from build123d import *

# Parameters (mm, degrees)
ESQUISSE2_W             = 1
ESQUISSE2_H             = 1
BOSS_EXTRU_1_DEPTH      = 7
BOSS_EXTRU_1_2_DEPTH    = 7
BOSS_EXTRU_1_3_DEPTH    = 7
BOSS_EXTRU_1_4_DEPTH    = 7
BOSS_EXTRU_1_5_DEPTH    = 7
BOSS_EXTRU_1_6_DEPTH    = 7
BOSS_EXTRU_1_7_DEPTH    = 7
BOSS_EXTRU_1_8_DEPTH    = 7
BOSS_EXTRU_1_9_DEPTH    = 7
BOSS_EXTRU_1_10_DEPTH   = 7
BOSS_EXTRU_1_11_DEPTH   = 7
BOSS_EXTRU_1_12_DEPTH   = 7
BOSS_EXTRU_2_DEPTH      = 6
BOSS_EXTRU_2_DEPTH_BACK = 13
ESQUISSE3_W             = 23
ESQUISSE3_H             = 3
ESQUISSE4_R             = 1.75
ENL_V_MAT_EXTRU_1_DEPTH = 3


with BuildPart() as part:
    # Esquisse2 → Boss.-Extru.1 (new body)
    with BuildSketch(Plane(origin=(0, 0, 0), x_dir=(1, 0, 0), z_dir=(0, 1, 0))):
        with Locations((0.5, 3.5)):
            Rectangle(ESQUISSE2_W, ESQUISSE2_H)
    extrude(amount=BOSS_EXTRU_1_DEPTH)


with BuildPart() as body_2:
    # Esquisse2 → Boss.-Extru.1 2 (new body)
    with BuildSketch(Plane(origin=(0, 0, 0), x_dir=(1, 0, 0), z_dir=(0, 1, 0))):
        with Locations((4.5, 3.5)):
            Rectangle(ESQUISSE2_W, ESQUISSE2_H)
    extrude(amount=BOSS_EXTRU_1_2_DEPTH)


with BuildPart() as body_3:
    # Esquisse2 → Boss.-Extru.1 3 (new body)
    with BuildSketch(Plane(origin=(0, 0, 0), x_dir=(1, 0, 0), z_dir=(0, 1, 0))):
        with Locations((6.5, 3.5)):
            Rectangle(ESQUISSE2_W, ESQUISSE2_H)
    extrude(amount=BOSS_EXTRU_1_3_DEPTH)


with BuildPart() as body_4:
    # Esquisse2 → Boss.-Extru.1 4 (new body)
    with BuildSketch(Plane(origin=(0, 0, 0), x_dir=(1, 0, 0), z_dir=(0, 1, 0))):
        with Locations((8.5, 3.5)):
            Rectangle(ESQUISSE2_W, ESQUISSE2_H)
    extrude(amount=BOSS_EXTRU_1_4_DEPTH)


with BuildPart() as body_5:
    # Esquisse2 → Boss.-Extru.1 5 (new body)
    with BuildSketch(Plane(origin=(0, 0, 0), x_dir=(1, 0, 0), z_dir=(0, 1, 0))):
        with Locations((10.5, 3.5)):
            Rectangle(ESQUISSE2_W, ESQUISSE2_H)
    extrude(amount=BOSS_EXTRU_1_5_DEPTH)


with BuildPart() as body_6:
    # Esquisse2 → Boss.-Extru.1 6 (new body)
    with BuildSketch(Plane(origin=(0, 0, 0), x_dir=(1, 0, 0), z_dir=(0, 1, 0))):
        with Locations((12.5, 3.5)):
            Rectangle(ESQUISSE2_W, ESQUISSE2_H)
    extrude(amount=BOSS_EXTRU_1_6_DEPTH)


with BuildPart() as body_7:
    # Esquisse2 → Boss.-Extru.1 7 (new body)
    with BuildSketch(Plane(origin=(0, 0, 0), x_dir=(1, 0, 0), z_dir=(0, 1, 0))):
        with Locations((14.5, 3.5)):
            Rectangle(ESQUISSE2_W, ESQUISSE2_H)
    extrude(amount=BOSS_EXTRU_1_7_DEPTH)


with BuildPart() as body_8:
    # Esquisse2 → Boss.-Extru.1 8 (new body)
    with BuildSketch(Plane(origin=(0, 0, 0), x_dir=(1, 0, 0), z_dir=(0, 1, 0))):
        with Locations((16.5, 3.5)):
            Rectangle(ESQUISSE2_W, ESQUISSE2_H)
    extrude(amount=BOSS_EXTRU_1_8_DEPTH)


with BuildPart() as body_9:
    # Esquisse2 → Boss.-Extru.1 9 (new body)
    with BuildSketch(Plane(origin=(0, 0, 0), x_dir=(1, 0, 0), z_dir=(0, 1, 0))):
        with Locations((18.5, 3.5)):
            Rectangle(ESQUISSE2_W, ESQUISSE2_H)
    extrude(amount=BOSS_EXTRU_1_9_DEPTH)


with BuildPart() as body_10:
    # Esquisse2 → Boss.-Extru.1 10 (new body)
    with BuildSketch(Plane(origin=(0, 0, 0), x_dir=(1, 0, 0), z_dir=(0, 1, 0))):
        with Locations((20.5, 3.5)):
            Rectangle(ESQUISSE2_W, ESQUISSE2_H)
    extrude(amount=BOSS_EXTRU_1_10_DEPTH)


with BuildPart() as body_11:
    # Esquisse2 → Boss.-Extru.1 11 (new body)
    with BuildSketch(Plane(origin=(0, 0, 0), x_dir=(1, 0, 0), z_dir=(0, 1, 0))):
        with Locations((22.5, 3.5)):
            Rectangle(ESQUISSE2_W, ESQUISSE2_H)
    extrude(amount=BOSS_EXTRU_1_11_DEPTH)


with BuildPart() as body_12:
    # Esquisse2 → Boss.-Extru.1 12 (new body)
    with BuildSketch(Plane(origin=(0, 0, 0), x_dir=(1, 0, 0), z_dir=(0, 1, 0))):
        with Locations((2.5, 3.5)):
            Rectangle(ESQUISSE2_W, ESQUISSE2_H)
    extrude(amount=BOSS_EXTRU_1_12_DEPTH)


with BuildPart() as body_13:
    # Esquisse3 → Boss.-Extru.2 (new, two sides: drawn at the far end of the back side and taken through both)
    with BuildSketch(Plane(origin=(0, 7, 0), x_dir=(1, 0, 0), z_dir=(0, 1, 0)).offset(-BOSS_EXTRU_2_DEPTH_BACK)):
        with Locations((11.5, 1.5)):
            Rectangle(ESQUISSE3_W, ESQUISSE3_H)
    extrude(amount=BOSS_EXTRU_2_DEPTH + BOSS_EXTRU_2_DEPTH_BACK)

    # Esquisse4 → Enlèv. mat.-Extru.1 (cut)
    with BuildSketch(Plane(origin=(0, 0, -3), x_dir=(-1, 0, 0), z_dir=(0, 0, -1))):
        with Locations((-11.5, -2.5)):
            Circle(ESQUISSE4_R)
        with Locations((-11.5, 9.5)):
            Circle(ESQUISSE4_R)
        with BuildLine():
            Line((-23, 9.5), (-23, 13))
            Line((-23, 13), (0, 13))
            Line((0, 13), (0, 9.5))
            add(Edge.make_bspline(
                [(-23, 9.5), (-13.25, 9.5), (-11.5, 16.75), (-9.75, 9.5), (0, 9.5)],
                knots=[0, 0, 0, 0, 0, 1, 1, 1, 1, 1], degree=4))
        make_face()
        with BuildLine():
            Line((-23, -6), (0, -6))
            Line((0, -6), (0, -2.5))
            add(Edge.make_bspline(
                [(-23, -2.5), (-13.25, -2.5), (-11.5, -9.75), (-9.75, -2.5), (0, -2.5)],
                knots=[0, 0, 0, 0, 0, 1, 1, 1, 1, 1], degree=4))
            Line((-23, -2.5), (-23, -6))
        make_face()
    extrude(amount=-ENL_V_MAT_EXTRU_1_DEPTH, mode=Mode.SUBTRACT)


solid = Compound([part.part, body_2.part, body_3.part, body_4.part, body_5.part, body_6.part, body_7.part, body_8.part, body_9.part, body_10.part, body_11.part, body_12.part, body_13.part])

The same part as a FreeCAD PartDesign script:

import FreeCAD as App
import Part
import Sketcher
from FreeCAD import Vector

doc = App.newDocument("Part")
body = doc.addObject("PartDesign::Body", "Body")

# Sketch on XZ plane
sketch1 = doc.addObject("Sketcher::SketchObject", "Sketch")
body.addObject(sketch1)
sketch1.AttachmentSupport = (doc.XZ_Plane, [""])
sketch1.MapMode = "FlatFace"
sketch1.addGeometry([
    Part.LineSegment(Vector(0, -4, 0), Vector(0, -3, 0)),
    Part.LineSegment(Vector(0, -3, 0), Vector(1, -3, 0)),
    Part.LineSegment(Vector(1, -3, 0), Vector(1, -4, 0)),
    Part.LineSegment(Vector(1, -4, 0), Vector(0, -4, 0)),
], False)
sketch1.addConstraint([
    Sketcher.Constraint("Coincident", 0, 2, 1, 1),
    Sketcher.Constraint("Coincident", 1, 2, 2, 1),
    Sketcher.Constraint("Coincident", 2, 2, 3, 1),
    Sketcher.Constraint("Coincident", 3, 2, 0, 1),
    Sketcher.Constraint("Vertical", 0),
    Sketcher.Constraint("Horizontal", 1),
    Sketcher.Constraint("Vertical", 2),
    Sketcher.Constraint("Horizontal", 3),
    Sketcher.Constraint("PointOnObject", 0, 2, -2),
    Sketcher.Constraint("Equal", 3, 0),
    Sketcher.Constraint("DistanceX", 1, 1, 1, 2, 1.0),
    Sketcher.Constraint("DistanceY", 0, 2, -1, 1, 3.0),
])
pad1 = doc.addObject("PartDesign::Pad", "Pad")
body.addObject(pad1)
pad1.Profile = sketch1
pad1.Length = 7
pad1.Reversed = True
body2 = doc.addObject("PartDesign::Body", "Body001")

# Sketch on XZ plane
sketch2 = doc.addObject("Sketcher::SketchObject", "Sketch001")
body2.addObject(sketch2)
sketch2.AttachmentSupport = (doc.getObject("XZ_Plane001"), [""])
sketch2.MapMode = "FlatFace"
sketch2.addGeometry([
    Part.LineSegment(Vector(4, -4, 0), Vector(4, -3, 0)),
    Part.LineSegment(Vector(4, -3, 0), Vector(5, -3, 0)),
    Part.LineSegment(Vector(5, -3, 0), Vector(5, -4, 0)),
    Part.LineSegment(Vector(5, -4, 0), Vector(4, -4, 0)),
], False)
sketch2.addConstraint([
    Sketcher.Constraint("Coincident", 0, 2, 1, 1),
    Sketcher.Constraint("Coincident", 1, 2, 2, 1),
    Sketcher.Constraint("Coincident", 2, 2, 3, 1),
    Sketcher.Constraint("Coincident", 3, 2, 0, 1),
    Sketcher.Constraint("Vertical", 0),
    Sketcher.Constraint("Horizontal", 1),
    Sketcher.Constraint("Vertical", 2),
    Sketcher.Constraint("Horizontal", 3),
    Sketcher.Constraint("Equal", 3, 0),
    Sketcher.Constraint("DistanceX", 1, 1, 1, 2, 1.0),
    Sketcher.Constraint("DistanceX", -1, 1, 0, 2, 4.0),
    Sketcher.Constraint("DistanceY", 0, 2, -1, 1, 3.0),
])
pad2 = doc.addObject("PartDesign::Pad", "Pad001")
body2.addObject(pad2)
pad2.Profile = sketch2
pad2.Length = 7
pad2.Reversed = True
body3 = doc.addObject("PartDesign::Body", "Body002")

# Sketch on XZ plane
sketch3 = doc.addObject("Sketcher::SketchObject", "Sketch002")
body3.addObject(sketch3)
sketch3.AttachmentSupport = (doc.getObject("XZ_Plane002"), [""])
sketch3.MapMode = "FlatFace"
sketch3.addGeometry([
    Part.LineSegment(Vector(6, -4, 0), Vector(6, -3, 0)),
    Part.LineSegment(Vector(6, -3, 0), Vector(7, -3, 0)),
    Part.LineSegment(Vector(7, -3, 0), Vector(7, -4, 0)),
    Part.LineSegment(Vector(7, -4, 0), Vector(6, -4, 0)),
], False)
sketch3.addConstraint([
    Sketcher.Constraint("Coincident", 0, 2, 1, 1),
    Sketcher.Constraint("Coincident", 1, 2, 2, 1),
    Sketcher.Constraint("Coincident", 2, 2, 3, 1),
    Sketcher.Constraint("Coincident", 3, 2, 0, 1),
    Sketcher.Constraint("Vertical", 0),
    Sketcher.Constraint("Horizontal", 1),
    Sketcher.Constraint("Vertical", 2),
    Sketcher.Constraint("Horizontal", 3),
    Sketcher.Constraint("Equal", 3, 0),
    Sketcher.Constraint("DistanceX", 1, 1, 1, 2, 1.0),
    Sketcher.Constraint("DistanceX", -1, 1, 0, 2, 6.0),
    Sketcher.Constraint("DistanceY", 0, 2, -1, 1, 3.0),
])
pad3 = doc.addObject("PartDesign::Pad", "Pad002")
body3.addObject(pad3)
pad3.Profile = sketch3
pad3.Length = 7
pad3.Reversed = True
body4 = doc.addObject("PartDesign::Body", "Body003")

# Sketch on XZ plane
sketch4 = doc.addObject("Sketcher::SketchObject", "Sketch003")
body4.addObject(sketch4)
sketch4.AttachmentSupport = (doc.getObject("XZ_Plane003"), [""])
sketch4.MapMode = "FlatFace"
sketch4.addGeometry([
    Part.LineSegment(Vector(8, -4, 0), Vector(8, -3, 0)),
    Part.LineSegment(Vector(8, -3, 0), Vector(9, -3, 0)),
    Part.LineSegment(Vector(9, -3, 0), Vector(9, -4, 0)),
    Part.LineSegment(Vector(9, -4, 0), Vector(8, -4, 0)),
], False)
sketch4.addConstraint([
    Sketcher.Constraint("Coincident", 0, 2, 1, 1),
    Sketcher.Constraint("Coincident", 1, 2, 2, 1),
    Sketcher.Constraint("Coincident", 2, 2, 3, 1),
    Sketcher.Constraint("Coincident", 3, 2, 0, 1),
    Sketcher.Constraint("Vertical", 0),
    Sketcher.Constraint("Horizontal", 1),
    Sketcher.Constraint("Vertical", 2),
    Sketcher.Constraint("Horizontal", 3),
    Sketcher.Constraint("Equal", 3, 0),
    Sketcher.Constraint("DistanceX", 1, 1, 1, 2, 1.0),
    Sketcher.Constraint("DistanceX", -1, 1, 0, 2, 8.0),
    Sketcher.Constraint("DistanceY", 0, 2, -1, 1, 3.0),
])
pad4 = doc.addObject("PartDesign::Pad", "Pad003")
body4.addObject(pad4)
pad4.Profile = sketch4
pad4.Length = 7
pad4.Reversed = True
body5 = doc.addObject("PartDesign::Body", "Body004")

# Sketch on XZ plane
sketch5 = doc.addObject("Sketcher::SketchObject", "Sketch004")
body5.addObject(sketch5)
sketch5.AttachmentSupport = (doc.getObject("XZ_Plane004"), [""])
sketch5.MapMode = "FlatFace"
sketch5.addGeometry([
    Part.LineSegment(Vector(10, -4, 0), Vector(10, -3, 0)),
    Part.LineSegment(Vector(10, -3, 0), Vector(11, -3, 0)),
    Part.LineSegment(Vector(11, -3, 0), Vector(11, -4, 0)),
    Part.LineSegment(Vector(11, -4, 0), Vector(10, -4, 0)),
], False)
sketch5.addConstraint([
    Sketcher.Constraint("Coincident", 0, 2, 1, 1),
    Sketcher.Constraint("Coincident", 1, 2, 2, 1),
    Sketcher.Constraint("Coincident", 2, 2, 3, 1),
    Sketcher.Constraint("Coincident", 3, 2, 0, 1),
    Sketcher.Constraint("Vertical", 0),
    Sketcher.Constraint("Horizontal", 1),
    Sketcher.Constraint("Vertical", 2),
    Sketcher.Constraint("Horizontal", 3),
    Sketcher.Constraint("Equal", 3, 0),
    Sketcher.Constraint("DistanceX", 1, 1, 1, 2, 1.0),
    Sketcher.Constraint("DistanceX", -1, 1, 0, 2, 10.0),
    Sketcher.Constraint("DistanceY", 0, 2, -1, 1, 3.0),
])
pad5 = doc.addObject("PartDesign::Pad", "Pad004")
body5.addObject(pad5)
pad5.Profile = sketch5
pad5.Length = 7
pad5.Reversed = True
body6 = doc.addObject("PartDesign::Body", "Body005")

# Sketch on XZ plane
sketch6 = doc.addObject("Sketcher::SketchObject", "Sketch005")
body6.addObject(sketch6)
sketch6.AttachmentSupport = (doc.getObject("XZ_Plane005"), [""])
sketch6.MapMode = "FlatFace"
sketch6.addGeometry([
    Part.LineSegment(Vector(12, -4, 0), Vector(12, -3, 0)),
    Part.LineSegment(Vector(12, -3, 0), Vector(13, -3, 0)),
    Part.LineSegment(Vector(13, -3, 0), Vector(13, -4, 0)),
    Part.LineSegment(Vector(13, -4, 0), Vector(12, -4, 0)),
], False)
sketch6.addConstraint([
    Sketcher.Constraint("Coincident", 0, 2, 1, 1),
    Sketcher.Constraint("Coincident", 1, 2, 2, 1),
    Sketcher.Constraint("Coincident", 2, 2, 3, 1),
    Sketcher.Constraint("Coincident", 3, 2, 0, 1),
    Sketcher.Constraint("Vertical", 0),
    Sketcher.Constraint("Horizontal", 1),
    Sketcher.Constraint("Vertical", 2),
    Sketcher.Constraint("Horizontal", 3),
    Sketcher.Constraint("Equal", 3, 0),
    Sketcher.Constraint("DistanceX", 1, 1, 1, 2, 1.0),
    Sketcher.Constraint("DistanceX", -1, 1, 0, 2, 12.0),
    Sketcher.Constraint("DistanceY", 0, 2, -1, 1, 3.0),
])
pad6 = doc.addObject("PartDesign::Pad", "Pad005")
body6.addObject(pad6)
pad6.Profile = sketch6
pad6.Length = 7
pad6.Reversed = True
body7 = doc.addObject("PartDesign::Body", "Body006")

# Sketch on XZ plane
sketch7 = doc.addObject("Sketcher::SketchObject", "Sketch006")
body7.addObject(sketch7)
sketch7.AttachmentSupport = (doc.getObject("XZ_Plane006"), [""])
sketch7.MapMode = "FlatFace"
sketch7.addGeometry([
    Part.LineSegment(Vector(14, -4, 0), Vector(14, -3, 0)),
    Part.LineSegment(Vector(14, -3, 0), Vector(15, -3, 0)),
    Part.LineSegment(Vector(15, -3, 0), Vector(15, -4, 0)),
    Part.LineSegment(Vector(15, -4, 0), Vector(14, -4, 0)),
], False)
sketch7.addConstraint([
    Sketcher.Constraint("Coincident", 0, 2, 1, 1),
    Sketcher.Constraint("Coincident", 1, 2, 2, 1),
    Sketcher.Constraint("Coincident", 2, 2, 3, 1),
    Sketcher.Constraint("Coincident", 3, 2, 0, 1),
    Sketcher.Constraint("Vertical", 0),
    Sketcher.Constraint("Horizontal", 1),
    Sketcher.Constraint("Vertical", 2),
    Sketcher.Constraint("Horizontal", 3),
    Sketcher.Constraint("Equal", 3, 0),
    Sketcher.Constraint("DistanceX", 1, 1, 1, 2, 1.0),
    Sketcher.Constraint("DistanceX", -1, 1, 0, 2, 14.0),
    Sketcher.Constraint("DistanceY", 0, 2, -1, 1, 3.0),
])
pad7 = doc.addObject("PartDesign::Pad", "Pad006")
body7.addObject(pad7)
pad7.Profile = sketch7
pad7.Length = 7
pad7.Reversed = True
body8 = doc.addObject("PartDesign::Body", "Body007")

# Sketch on XZ plane
sketch8 = doc.addObject("Sketcher::SketchObject", "Sketch007")
body8.addObject(sketch8)
sketch8.AttachmentSupport = (doc.getObject("XZ_Plane007"), [""])
sketch8.MapMode = "FlatFace"
sketch8.addGeometry([
    Part.LineSegment(Vector(16, -4, 0), Vector(16, -3, 0)),
    Part.LineSegment(Vector(16, -3, 0), Vector(17, -3, 0)),
    Part.LineSegment(Vector(17, -3, 0), Vector(17, -4, 0)),
    Part.LineSegment(Vector(17, -4, 0), Vector(16, -4, 0)),
], False)
sketch8.addConstraint([
    Sketcher.Constraint("Coincident", 0, 2, 1, 1),
    Sketcher.Constraint("Coincident", 1, 2, 2, 1),
    Sketcher.Constraint("Coincident", 2, 2, 3, 1),
    Sketcher.Constraint("Coincident", 3, 2, 0, 1),
    Sketcher.Constraint("Vertical", 0),
    Sketcher.Constraint("Horizontal", 1),
    Sketcher.Constraint("Vertical", 2),
    Sketcher.Constraint("Horizontal", 3),
    Sketcher.Constraint("Equal", 3, 0),
    Sketcher.Constraint("DistanceX", 1, 1, 1, 2, 1.0),
    Sketcher.Constraint("DistanceX", -1, 1, 0, 2, 16.0),
    Sketcher.Constraint("DistanceY", 0, 2, -1, 1, 3.0),
])
pad8 = doc.addObject("PartDesign::Pad", "Pad007")
body8.addObject(pad8)
pad8.Profile = sketch8
pad8.Length = 7
pad8.Reversed = True
body9 = doc.addObject("PartDesign::Body", "Body008")

# Sketch on XZ plane
sketch9 = doc.addObject("Sketcher::SketchObject", "Sketch008")
body9.addObject(sketch9)
sketch9.AttachmentSupport = (doc.getObject("XZ_Plane008"), [""])
sketch9.MapMode = "FlatFace"
sketch9.addGeometry([
    Part.LineSegment(Vector(18, -4, 0), Vector(18, -3, 0)),
    Part.LineSegment(Vector(18, -3, 0), Vector(19, -3, 0)),
    Part.LineSegment(Vector(19, -3, 0), Vector(19, -4, 0)),
    Part.LineSegment(Vector(19, -4, 0), Vector(18, -4, 0)),
], False)
sketch9.addConstraint([
    Sketcher.Constraint("Coincident", 0, 2, 1, 1),
    Sketcher.Constraint("Coincident", 1, 2, 2, 1),
    Sketcher.Constraint("Coincident", 2, 2, 3, 1),
    Sketcher.Constraint("Coincident", 3, 2, 0, 1),
    Sketcher.Constraint("Vertical", 0),
    Sketcher.Constraint("Horizontal", 1),
    Sketcher.Constraint("Vertical", 2),
    Sketcher.Constraint("Horizontal", 3),
    Sketcher.Constraint("Equal", 3, 0),
    Sketcher.Constraint("DistanceX", 1, 1, 1, 2, 1.0),
    Sketcher.Constraint("DistanceX", -1, 1, 0, 2, 18.0),
    Sketcher.Constraint("DistanceY", 0, 2, -1, 1, 3.0),
])
pad9 = doc.addObject("PartDesign::Pad", "Pad008")
body9.addObject(pad9)
pad9.Profile = sketch9
pad9.Length = 7
pad9.Reversed = True
body10 = doc.addObject("PartDesign::Body", "Body009")

# Sketch on XZ plane
sketch10 = doc.addObject("Sketcher::SketchObject", "Sketch009")
body10.addObject(sketch10)
sketch10.AttachmentSupport = (doc.getObject("XZ_Plane009"), [""])
sketch10.MapMode = "FlatFace"
sketch10.addGeometry([
    Part.LineSegment(Vector(20, -4, 0), Vector(20, -3, 0)),
    Part.LineSegment(Vector(20, -3, 0), Vector(21, -3, 0)),
    Part.LineSegment(Vector(21, -3, 0), Vector(21, -4, 0)),
    Part.LineSegment(Vector(21, -4, 0), Vector(20, -4, 0)),
], False)
sketch10.addConstraint([
    Sketcher.Constraint("Coincident", 0, 2, 1, 1),
    Sketcher.Constraint("Coincident", 1, 2, 2, 1),
    Sketcher.Constraint("Coincident", 2, 2, 3, 1),
    Sketcher.Constraint("Coincident", 3, 2, 0, 1),
    Sketcher.Constraint("Vertical", 0),
    Sketcher.Constraint("Horizontal", 1),
    Sketcher.Constraint("Vertical", 2),
    Sketcher.Constraint("Horizontal", 3),
    Sketcher.Constraint("Equal", 3, 0),
    Sketcher.Constraint("DistanceX", 1, 1, 1, 2, 1.0),
    Sketcher.Constraint("DistanceX", -1, 1, 0, 2, 20.0),
    Sketcher.Constraint("DistanceY", 0, 2, -1, 1, 3.0),
])
pad10 = doc.addObject("PartDesign::Pad", "Pad009")
body10.addObject(pad10)
pad10.Profile = sketch10
pad10.Length = 7
pad10.Reversed = True
body11 = doc.addObject("PartDesign::Body", "Body010")

# Sketch on XZ plane
sketch11 = doc.addObject("Sketcher::SketchObject", "Sketch010")
body11.addObject(sketch11)
sketch11.AttachmentSupport = (doc.getObject("XZ_Plane010"), [""])
sketch11.MapMode = "FlatFace"
sketch11.addGeometry([
    Part.LineSegment(Vector(22, -4, 0), Vector(22, -3, 0)),
    Part.LineSegment(Vector(22, -3, 0), Vector(23, -3, 0)),
    Part.LineSegment(Vector(23, -3, 0), Vector(23, -4, 0)),
    Part.LineSegment(Vector(23, -4, 0), Vector(22, -4, 0)),
], False)
sketch11.addConstraint([
    Sketcher.Constraint("Coincident", 0, 2, 1, 1),
    Sketcher.Constraint("Coincident", 1, 2, 2, 1),
    Sketcher.Constraint("Coincident", 2, 2, 3, 1),
    Sketcher.Constraint("Coincident", 3, 2, 0, 1),
    Sketcher.Constraint("Vertical", 0),
    Sketcher.Constraint("Horizontal", 1),
    Sketcher.Constraint("Vertical", 2),
    Sketcher.Constraint("Horizontal", 3),
    Sketcher.Constraint("Equal", 3, 0),
    Sketcher.Constraint("DistanceX", 1, 1, 1, 2, 1.0),
    Sketcher.Constraint("DistanceX", -1, 1, 0, 2, 22.0),
    Sketcher.Constraint("DistanceY", 0, 2, -1, 1, 3.0),
])
pad11 = doc.addObject("PartDesign::Pad", "Pad010")
body11.addObject(pad11)
pad11.Profile = sketch11
pad11.Length = 7
pad11.Reversed = True
body12 = doc.addObject("PartDesign::Body", "Body011")

# Sketch on XZ plane
sketch12 = doc.addObject("Sketcher::SketchObject", "Sketch011")
body12.addObject(sketch12)
sketch12.AttachmentSupport = (doc.getObject("XZ_Plane011"), [""])
sketch12.MapMode = "FlatFace"
sketch12.addGeometry([
    Part.LineSegment(Vector(2, -4, 0), Vector(2, -3, 0)),
    Part.LineSegment(Vector(2, -3, 0), Vector(3, -3, 0)),
    Part.LineSegment(Vector(3, -3, 0), Vector(3, -4, 0)),
    Part.LineSegment(Vector(3, -4, 0), Vector(2, -4, 0)),
], False)
sketch12.addConstraint([
    Sketcher.Constraint("Coincident", 0, 2, 1, 1),
    Sketcher.Constraint("Coincident", 1, 2, 2, 1),
    Sketcher.Constraint("Coincident", 2, 2, 3, 1),
    Sketcher.Constraint("Coincident", 3, 2, 0, 1),
    Sketcher.Constraint("Vertical", 0),
    Sketcher.Constraint("Horizontal", 1),
    Sketcher.Constraint("Vertical", 2),
    Sketcher.Constraint("Horizontal", 3),
    Sketcher.Constraint("Equal", 3, 0),
    Sketcher.Constraint("DistanceX", 1, 1, 1, 2, 1.0),
    Sketcher.Constraint("DistanceX", -1, 1, 0, 2, 2.0),
    Sketcher.Constraint("DistanceY", 0, 2, -1, 1, 3.0),
])
pad12 = doc.addObject("PartDesign::Pad", "Pad011")
body12.addObject(pad12)
pad12.Profile = sketch12
pad12.Length = 7
pad12.Reversed = True
body13 = doc.addObject("PartDesign::Body", "Body012")

# Sketch on XZ plane
sketch13 = doc.addObject("Sketcher::SketchObject", "Sketch012")
body13.addObject(sketch13)
sketch13.AttachmentSupport = (doc.getObject("XZ_Plane012"), [""])
sketch13.MapMode = "FlatFace"
sketch13.AttachmentOffset = App.Placement(Vector(0, 0, -7), App.Rotation())
sketch13.addGeometry([
    Part.LineSegment(Vector(0, -3, 0), Vector(0, 0, 0)),
    Part.LineSegment(Vector(0, 0, 0), Vector(23, 0, 0)),
    Part.LineSegment(Vector(23, 0, 0), Vector(23, -3, 0)),
    Part.LineSegment(Vector(23, -3, 0), Vector(0, -3, 0)),
], False)
sketch13.addConstraint([
    Sketcher.Constraint("Coincident", 0, 2, 1, 1),
    Sketcher.Constraint("Coincident", 1, 2, 2, 1),
    Sketcher.Constraint("Coincident", 2, 2, 3, 1),
    Sketcher.Constraint("Coincident", 3, 2, 0, 1),
    Sketcher.Constraint("Vertical", 0),
    Sketcher.Constraint("Horizontal", 1),
    Sketcher.Constraint("Vertical", 2),
    Sketcher.Constraint("Horizontal", 3),
    Sketcher.Constraint("Coincident", 0, 2, -1, 1),
    Sketcher.Constraint("DistanceX", 1, 1, 1, 2, 23.0),
    Sketcher.Constraint("DistanceY", 0, 1, 0, 2, 3.0),
])
pad13 = doc.addObject("PartDesign::Pad", "Pad012")
body13.addObject(pad13)
pad13.Profile = sketch13
pad13.Type = "TwoLengths"
pad13.Length = 6
pad13.Length2 = 13
pad13.Reversed = True

# Sketch on XY plane
sketch14 = doc.addObject("Sketcher::SketchObject", "Sketch013")
body13.addObject(sketch14)
sketch14.AttachmentSupport = (doc.getObject("XY_Plane012"), [""])
sketch14.MapMode = "FlatFace"
sketch14.AttachmentOffset = App.Placement(Vector(0, 0, -3), App.Rotation())
sketch14.addGeometry([
    Part.Circle(Vector(11.5, -2.5, 0), Vector(0, 0, 1), 1.75),  # 0
    Part.Circle(Vector(11.5, 9.5, 0), Vector(0, 0, 1), 1.75),  # 1
    Part.LineSegment(Vector(23, 13, 0), Vector(23, 9.5, 0)),  # 2
    Part.BSplineCurve([Vector(23, 9.5, 0), Vector(13.25, 9.5, 0), Vector(11.5, 16.75, 0), Vector(9.75, 9.5, 0), Vector(0, 9.5, 0)], [5, 5], [0, 1], False, 4, [1, 1, 1, 1, 1], False),  # 3
    Part.LineSegment(Vector(0, 9.5, 0), Vector(0, 13, 0)),  # 4
    Part.LineSegment(Vector(0, 13, 0), Vector(23, 13, 0)),  # 5
    Part.LineSegment(Vector(23, -6, 0), Vector(0, -6, 0)),  # 6
    Part.LineSegment(Vector(0, -6, 0), Vector(0, -2.5, 0)),  # 7
    Part.BSplineCurve([Vector(23, -2.5, 0), Vector(13.25, -2.5, 0), Vector(11.5, -9.75, 0), Vector(9.75, -2.5, 0), Vector(0, -2.5, 0)], [5, 5], [0, 1], False, 4, [1, 1, 1, 1, 1], False),  # 8
    Part.LineSegment(Vector(23, -2.5, 0), Vector(23, -6, 0)),  # 9
], False)
sketch14.addConstraint([
    Sketcher.Constraint("Block", 3),
    Sketcher.Constraint("Block", 8),
    Sketcher.Constraint("Coincident", 2, 2, 3, 1),
    Sketcher.Constraint("Coincident", 3, 2, 4, 1),
    Sketcher.Constraint("Coincident", 4, 2, 5, 1),
    Sketcher.Constraint("Coincident", 5, 2, 2, 1),
    Sketcher.Constraint("Coincident", 6, 2, 7, 1),
    Sketcher.Constraint("Coincident", 7, 2, 8, 2),
    Sketcher.Constraint("Coincident", 8, 1, 9, 1),
    Sketcher.Constraint("Coincident", 9, 2, 6, 1),
    Sketcher.Constraint("Vertical", 2),
    Sketcher.Constraint("Vertical", 4),
    Sketcher.Constraint("Horizontal", 5),
    Sketcher.Constraint("Horizontal", 6),
    Sketcher.Constraint("Vertical", 7),
    Sketcher.Constraint("Vertical", 9),
    Sketcher.Constraint("Equal", 0, 1),
    Sketcher.Constraint("Horizontal", 1, 3, 2, 2),
    Sketcher.Constraint("Horizontal", 0, 3, 7, 2),
    Sketcher.Constraint("Vertical", 0, 3, 1, 3),
    Sketcher.Constraint("Equal", 4, 7),
    Sketcher.Constraint("Diameter", 0, 3.5),
    Sketcher.Constraint("DistanceY", 2, 2, 2, 1, 3.5),
    Sketcher.Constraint("DistanceX", -1, 1, 0, 3, 11.5),
])
pocket1 = doc.addObject("PartDesign::Pocket", "Pocket")
body13.addObject(pocket1)
pocket1.Profile = sketch14
pocket1.Length = 3
pocket1.Reversed = True

doc.recompute()
